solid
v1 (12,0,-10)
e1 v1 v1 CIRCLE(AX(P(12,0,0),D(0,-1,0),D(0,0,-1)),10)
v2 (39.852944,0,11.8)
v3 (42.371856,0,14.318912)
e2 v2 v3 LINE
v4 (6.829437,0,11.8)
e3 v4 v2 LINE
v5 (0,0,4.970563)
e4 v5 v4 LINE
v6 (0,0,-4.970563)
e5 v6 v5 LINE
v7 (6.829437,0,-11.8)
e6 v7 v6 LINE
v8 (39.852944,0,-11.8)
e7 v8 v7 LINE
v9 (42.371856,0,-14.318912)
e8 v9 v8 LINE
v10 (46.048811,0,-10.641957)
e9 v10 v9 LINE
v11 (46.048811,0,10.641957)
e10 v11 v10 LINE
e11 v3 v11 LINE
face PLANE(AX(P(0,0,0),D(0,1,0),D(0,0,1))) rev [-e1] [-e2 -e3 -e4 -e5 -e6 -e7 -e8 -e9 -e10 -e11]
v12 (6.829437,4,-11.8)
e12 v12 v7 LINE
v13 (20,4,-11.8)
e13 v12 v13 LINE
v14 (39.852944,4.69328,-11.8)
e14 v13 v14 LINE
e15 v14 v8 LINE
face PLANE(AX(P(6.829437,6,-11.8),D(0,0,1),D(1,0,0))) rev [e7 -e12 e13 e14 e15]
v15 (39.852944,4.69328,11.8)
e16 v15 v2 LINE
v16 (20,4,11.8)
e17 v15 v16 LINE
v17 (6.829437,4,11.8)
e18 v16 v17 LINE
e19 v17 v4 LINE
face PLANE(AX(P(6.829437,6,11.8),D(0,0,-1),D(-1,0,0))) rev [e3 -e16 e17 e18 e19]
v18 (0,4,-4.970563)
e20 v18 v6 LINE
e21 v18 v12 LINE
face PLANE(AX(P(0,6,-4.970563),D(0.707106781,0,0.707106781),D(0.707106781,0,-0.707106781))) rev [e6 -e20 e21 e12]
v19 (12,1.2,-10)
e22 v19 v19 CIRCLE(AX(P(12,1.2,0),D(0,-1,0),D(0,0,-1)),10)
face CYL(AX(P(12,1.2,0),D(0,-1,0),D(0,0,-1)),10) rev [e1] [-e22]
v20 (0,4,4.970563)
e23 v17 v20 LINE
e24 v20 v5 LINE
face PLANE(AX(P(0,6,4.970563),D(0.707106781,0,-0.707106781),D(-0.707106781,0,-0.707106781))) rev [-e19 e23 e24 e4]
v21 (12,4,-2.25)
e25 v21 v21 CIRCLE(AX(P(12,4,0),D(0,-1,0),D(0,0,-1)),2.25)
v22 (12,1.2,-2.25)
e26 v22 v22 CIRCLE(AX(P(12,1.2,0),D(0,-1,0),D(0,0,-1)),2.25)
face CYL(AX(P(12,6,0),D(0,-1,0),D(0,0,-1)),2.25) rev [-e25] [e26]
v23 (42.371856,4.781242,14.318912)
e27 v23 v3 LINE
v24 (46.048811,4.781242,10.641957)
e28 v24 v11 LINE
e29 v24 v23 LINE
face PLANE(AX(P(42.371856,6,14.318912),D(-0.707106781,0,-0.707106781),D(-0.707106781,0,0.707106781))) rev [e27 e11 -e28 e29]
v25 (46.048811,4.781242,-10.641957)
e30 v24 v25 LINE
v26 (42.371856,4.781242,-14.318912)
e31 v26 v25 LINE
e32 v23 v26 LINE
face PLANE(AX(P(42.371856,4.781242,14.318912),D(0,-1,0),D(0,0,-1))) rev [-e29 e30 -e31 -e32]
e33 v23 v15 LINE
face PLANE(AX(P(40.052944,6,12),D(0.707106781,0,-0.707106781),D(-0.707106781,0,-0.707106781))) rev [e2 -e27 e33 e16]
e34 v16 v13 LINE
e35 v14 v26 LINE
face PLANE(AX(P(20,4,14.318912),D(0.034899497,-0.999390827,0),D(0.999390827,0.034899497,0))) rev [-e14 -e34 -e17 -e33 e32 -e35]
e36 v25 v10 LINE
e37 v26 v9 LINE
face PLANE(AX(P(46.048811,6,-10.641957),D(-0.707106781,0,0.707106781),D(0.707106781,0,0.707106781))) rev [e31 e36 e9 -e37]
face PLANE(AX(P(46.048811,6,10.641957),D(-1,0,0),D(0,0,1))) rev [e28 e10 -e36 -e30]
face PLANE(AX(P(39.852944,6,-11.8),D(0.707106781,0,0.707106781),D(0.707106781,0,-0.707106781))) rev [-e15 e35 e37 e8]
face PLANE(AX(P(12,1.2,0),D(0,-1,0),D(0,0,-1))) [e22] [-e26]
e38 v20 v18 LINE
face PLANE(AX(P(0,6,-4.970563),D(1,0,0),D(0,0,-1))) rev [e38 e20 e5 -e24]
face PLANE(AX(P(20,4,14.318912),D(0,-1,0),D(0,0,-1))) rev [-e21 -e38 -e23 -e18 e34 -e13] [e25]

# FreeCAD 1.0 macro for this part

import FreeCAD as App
import Part
import Sketcher
Q = App.Units.Quantity

doc = App.newDocument("Part")
body = doc.addObject("PartDesign::Body", "Body")

# Sketch on XZ plane
sketch1 = body.newObject("Sketcher::SketchObject", "Sketch")
sketch1.AttachmentSupport = (doc.getObject("XZ_Plane"), [""])
sketch1.MapMode = "FlatFace"
sketch1.addGeometry(Part.LineSegment(App.Vector(0, -5, 0), App.Vector(0, 5, 0)), False)
sketch1.addGeometry(Part.LineSegment(App.Vector(0, 5, 0), App.Vector(6.8, 11.8, 0)), False)
sketch1.addGeometry(Part.LineSegment(App.Vector(6.8, 11.8, 0), App.Vector(39.9, 11.8, 0)), False)
sketch1.addGeometry(Part.LineSegment(App.Vector(39.9, 11.8, 0), App.Vector(42.4, 14.3, 0)), False)
sketch1.addGeometry(Part.LineSegment(App.Vector(42.4, 14.3, 0), App.Vector(46, 10.6, 0)), False)
sketch1.addGeometry(Part.LineSegment(App.Vector(46, 10.6, 0), App.Vector(46, -10.6, 0)), False)
sketch1.addGeometry(Part.LineSegment(App.Vector(46, -10.6, 0), App.Vector(42.4, -14.3, 0)), False)
sketch1.addGeometry(Part.LineSegment(App.Vector(42.4, -14.3, 0), App.Vector(39.9, -11.8, 0)), False)
sketch1.addGeometry(Part.LineSegment(App.Vector(39.9, -11.8, 0), App.Vector(6.8, -11.8, 0)), False)
sketch1.addGeometry(Part.LineSegment(App.Vector(6.8, -11.8, 0), App.Vector(0, -5, 0)), False)
sketch1.addGeometry(Part.Circle(App.Vector(12, 0, 0), App.Vector(0, 0, 1), 2.2), False)
sketch1.addConstraint(Sketcher.Constraint("Coincident", 0, 2, 1, 1))
sketch1.addConstraint(Sketcher.Constraint("Coincident", 1, 2, 2, 1))
sketch1.addConstraint(Sketcher.Constraint("Coincident", 2, 2, 3, 1))
sketch1.addConstraint(Sketcher.Constraint("Coincident", 3, 2, 4, 1))
sketch1.addConstraint(Sketcher.Constraint("Coincident", 4, 2, 5, 1))
sketch1.addConstraint(Sketcher.Constraint("Coincident", 5, 2, 6, 1))
sketch1.addConstraint(Sketcher.Constraint("Coincident", 6, 2, 7, 1))
sketch1.addConstraint(Sketcher.Constraint("Coincident", 7, 2, 8, 1))
sketch1.addConstraint(Sketcher.Constraint("Coincident", 8, 2, 9, 1))
sketch1.addConstraint(Sketcher.Constraint("Coincident", 9, 2, 0, 1))
sketch1.addConstraint(Sketcher.Constraint("Vertical", 0))
sketch1.addConstraint(Sketcher.Constraint("Horizontal", 2))
sketch1.addConstraint(Sketcher.Constraint("Vertical", 5))
sketch1.addConstraint(Sketcher.Constraint("Horizontal", 8))
sketch1.addConstraint(Sketcher.Constraint("Symmetric", 0, 2, 9, 2, -1, 1))
sketch1.addConstraint(Sketcher.Constraint("Symmetric", 3, 2, 6, 2, -1))
sketch1.addConstraint(Sketcher.Constraint("Symmetric", 2, 2, 7, 2, -1))
sketch1.addConstraint(Sketcher.Constraint("PointOnObject", 10, 3, -1))
sketch1.addConstraint(Sketcher.Constraint("Parallel", 1, 3))
sketch1.addConstraint(Sketcher.Constraint("Perpendicular", 3, 4))
sketch1.addConstraint(Sketcher.Constraint("Perpendicular", 4, 6))
sketch1.addConstraint(Sketcher.Constraint("Perpendicular", 6, 7))
sketch1.addConstraint(Sketcher.Constraint("Parallel", 7, 9))
sketch1.addConstraint(Sketcher.Constraint("Diameter", 10, Q("4.5 mm")))
sketch1.addConstraint(Sketcher.Constraint("DistanceX", -1, 1, 10, 3, Q("12 mm")))
sketch1.addConstraint(Sketcher.Constraint("Distance", 4, Q("5.2 mm")))
sketch1.addConstraint(Sketcher.Constraint("DistanceY", -1, 1, 1, 2, Q("11.8 mm")))
sketch1.addConstraint(Sketcher.Constraint("Distance", 3, Q("3.56228 mm")))
sketch1.addConstraint(Sketcher.Constraint("DistanceX", 2, 1, 2, 2, Q("33.023506 mm")))
sketch1.addConstraint(Sketcher.Constraint("DistanceY", 0, 1, 0, 2, Q("9.941125 mm")))
pad1 = body.newObject("PartDesign::Pad", "Pad")
pad1.Profile = sketch1
pad1.Length = 6
pad1.Reversed = True

# Sketch on XZ plane
sketch2 = body.newObject("Sketcher::SketchObject", "Sketch001")
sketch2.AttachmentSupport = (doc.getObject("XZ_Plane"), [""])
sketch2.MapMode = "FlatFace"
sketch2.addGeometry(Part.Circle(App.Vector(12, 0, 0), App.Vector(0, 0, 1), 10), False)
sketch2.addConstraint(Sketcher.Constraint("PointOnObject", 0, 3, -1))
sketch2.addConstraint(Sketcher.Constraint("Diameter", 0, Q("20 mm")))
sketch2.addConstraint(Sketcher.Constraint("DistanceX", -1, 1, 0, 3, Q("12 mm")))
pocket1 = body.newObject("PartDesign::Pocket", "Pocket")
pocket1.Profile = sketch2
pocket1.Length = 1.2

# Sketch on XY plane
sketch3 = body.newObject("Sketcher::SketchObject", "Sketch002")
sketch3.AttachmentSupport = (doc.getObject("XY_Plane"), [""])
sketch3.MapMode = "FlatFace"
sketch3.AttachmentOffset = App.Placement(App.Vector(0, 0, -11.8), App.Rotation())
sketch3.addGeometry(Part.LineSegment(App.Vector(0, 6, 0), App.Vector(46, 6, 0)), False)
sketch3.addGeometry(Part.LineSegment(App.Vector(46, 6, 0), App.Vector(46, 4.8, 0)), False)
sketch3.addGeometry(Part.LineSegment(App.Vector(46, 4.8, 0), App.Vector(42.4, 4.8, 0)), False)
sketch3.addGeometry(Part.LineSegment(App.Vector(42.4, 4.8, 0), App.Vector(20, 4, 0)), False)
sketch3.addGeometry(Part.LineSegment(App.Vector(20, 4, 0), App.Vector(0, 4, 0)), False)
sketch3.addGeometry(Part.LineSegment(App.Vector(0, 4, 0), App.Vector(0, 6, 0)), False)
sketch3.addConstraint(Sketcher.Constraint("Coincident", 0, 2, 1, 1))
sketch3.addConstraint(Sketcher.Constraint("Coincident", 1, 2, 2, 1))
sketch3.addConstraint(Sketcher.Constraint("Coincident", 2, 2, 3, 1))
sketch3.addConstraint(Sketcher.Constraint("Coincident", 3, 2, 4, 1))
sketch3.addConstraint(Sketcher.Constraint("Coincident", 4, 2, 5, 1))
sketch3.addConstraint(Sketcher.Constraint("Coincident", 5, 2, 0, 1))
sketch3.addConstraint(Sketcher.Constraint("Horizontal", 0))
sketch3.addConstraint(Sketcher.Constraint("Vertical", 1))
sketch3.addConstraint(Sketcher.Constraint("Horizontal", 2))
sketch3.addConstraint(Sketcher.Constraint("Horizontal", 4))
sketch3.addConstraint(Sketcher.Constraint("Vertical", 5))
sketch3.addConstraint(Sketcher.Constraint("PointOnObject", 4, 2, -2))
sketch3.addConstraint(Sketcher.Constraint("DistanceX", 4, 2, 4, 1, Q("20 mm")))
sketch3.addConstraint(Sketcher.Constraint("DistanceY", 5, 1, 5, 2, Q("2 mm")))
sketch3.addConstraint(Sketcher.Constraint("Angle", 3, Q("-178 deg")))
sketch3.addConstraint(Sketcher.Constraint("DistanceY", -1, 1, 0, 2, Q("6 mm")))
sketch3.addConstraint(Sketcher.Constraint("DistanceX", 0, 1, 0, 2, Q("46.048811 mm")))
sketch3.addConstraint(Sketcher.Constraint("DistanceX", 2, 2, 2, 1, Q("3.676955 mm")))
pocket2 = body.newObject("PartDesign::Pocket", "Pocket001")
pocket2.Profile = sketch3
pocket2.Type = "ThroughAll"
pocket2.Midplane = True

doc.recompute()
